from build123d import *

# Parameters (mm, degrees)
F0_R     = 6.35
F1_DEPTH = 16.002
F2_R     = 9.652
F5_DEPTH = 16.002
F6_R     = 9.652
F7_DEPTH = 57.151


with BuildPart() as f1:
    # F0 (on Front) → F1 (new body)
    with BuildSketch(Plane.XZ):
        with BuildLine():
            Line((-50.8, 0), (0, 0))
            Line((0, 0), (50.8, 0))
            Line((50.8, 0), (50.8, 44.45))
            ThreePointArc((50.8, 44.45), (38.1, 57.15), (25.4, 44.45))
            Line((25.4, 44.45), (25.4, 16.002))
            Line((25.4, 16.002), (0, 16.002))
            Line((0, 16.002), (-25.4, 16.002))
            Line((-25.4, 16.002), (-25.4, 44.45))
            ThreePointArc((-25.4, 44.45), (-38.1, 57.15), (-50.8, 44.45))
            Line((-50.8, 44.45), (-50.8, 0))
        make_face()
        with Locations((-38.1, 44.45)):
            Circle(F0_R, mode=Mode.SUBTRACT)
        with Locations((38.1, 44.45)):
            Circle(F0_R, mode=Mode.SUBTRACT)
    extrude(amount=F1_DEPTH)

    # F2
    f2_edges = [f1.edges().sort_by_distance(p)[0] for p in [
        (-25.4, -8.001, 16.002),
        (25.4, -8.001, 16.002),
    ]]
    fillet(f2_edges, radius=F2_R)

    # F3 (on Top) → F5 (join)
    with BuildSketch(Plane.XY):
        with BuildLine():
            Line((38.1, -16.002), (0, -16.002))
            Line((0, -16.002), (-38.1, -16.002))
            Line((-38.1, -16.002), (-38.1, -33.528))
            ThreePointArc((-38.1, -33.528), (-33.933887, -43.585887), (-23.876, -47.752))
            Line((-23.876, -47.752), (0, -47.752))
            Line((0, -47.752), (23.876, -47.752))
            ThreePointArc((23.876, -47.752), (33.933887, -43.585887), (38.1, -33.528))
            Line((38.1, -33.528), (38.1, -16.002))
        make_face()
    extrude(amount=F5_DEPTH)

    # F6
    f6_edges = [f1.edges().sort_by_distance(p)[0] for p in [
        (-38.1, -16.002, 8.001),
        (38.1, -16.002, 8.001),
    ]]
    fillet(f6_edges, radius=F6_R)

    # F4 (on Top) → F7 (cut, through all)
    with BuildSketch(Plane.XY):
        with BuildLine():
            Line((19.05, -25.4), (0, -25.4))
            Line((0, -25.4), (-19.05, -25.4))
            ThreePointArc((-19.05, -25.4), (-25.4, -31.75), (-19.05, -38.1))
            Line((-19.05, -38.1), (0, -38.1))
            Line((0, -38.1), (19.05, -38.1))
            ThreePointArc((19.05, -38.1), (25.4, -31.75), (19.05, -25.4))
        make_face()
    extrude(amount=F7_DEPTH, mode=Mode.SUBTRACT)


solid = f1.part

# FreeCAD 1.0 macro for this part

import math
import FreeCAD as App
import Part
import Sketcher

V = App.Vector
Q = App.Units.Quantity


def edges_at(feature, points):
    """Names of the edges that pass closest to the given points."""
    edges = feature.Shape.Edges
    near = lambda p: min(range(len(edges)), key=lambda i: edges[i].distToShape(Part.Vertex(*p))[0])
    return sorted({f"Edge{near(p) + 1}" for p in points})

doc = App.newDocument("Part")
body = doc.addObject("PartDesign::Body", "Body")

# Sketch on XZ plane
sketch1 = doc.addObject("Sketcher::SketchObject", "Sketch")
body.addObject(sketch1)
sketch1.AttachmentSupport = (doc.XZ_Plane, [""])
sketch1.MapMode = "FlatFace"
sketch1.addGeometry([
    Part.LineSegment(V(-50.8, 0, 0), V(50.8, 0, 0)),  # 0
    Part.LineSegment(V(50.8, 0, 0), V(50.8, 44.45, 0)),  # 1
    Part.ArcOfCircle(Part.Circle(V(38.1, 44.45, 0), V(0, 0, 1), 12.7), math.radians(0), math.radians(180)),  # 2
    Part.LineSegment(V(25.4, 44.45, 0), V(25.4, 16.002, 0)),  # 3
    Part.LineSegment(V(25.4, 16.002, 0), V(-25.4, 16.002, 0)),  # 4
    Part.LineSegment(V(-25.4, 16.002, 0), V(-25.4, 44.45, 0)),  # 5
    Part.ArcOfCircle(Part.Circle(V(-38.1, 44.45, 0), V(0, 0, 1), 12.7), math.radians(0), math.radians(180)),  # 6
    Part.LineSegment(V(-50.8, 44.45, 0), V(-50.8, 0, 0)),  # 7
    Part.Circle(V(-38.1, 44.45, 0), V(0, 0, 1), 6.35),  # 8
    Part.Circle(V(38.1, 44.45, 0), V(0, 0, 1), 6.35),  # 9
], False)
sketch1.addConstraint([
    Sketcher.Constraint("Coincident", 0, 2, 1, 1),
    Sketcher.Constraint("Tangent", 1, 2, 2, 1),
    Sketcher.Constraint("Tangent", 2, 2, 3, 1),
    Sketcher.Constraint("Coincident", 3, 2, 4, 1),
    Sketcher.Constraint("Coincident", 4, 2, 5, 1),
    Sketcher.Constraint("Tangent", 5, 2, 6, 1),
    Sketcher.Constraint("Tangent", 6, 2, 7, 1),
    Sketcher.Constraint("Coincident", 7, 2, 0, 1),
    Sketcher.Constraint("Horizontal", 0),
    Sketcher.Constraint("Vertical", 1),
    Sketcher.Constraint("Vertical", 3),
    Sketcher.Constraint("Horizontal", 4),
    Sketcher.Constraint("Vertical", 5),
    Sketcher.Constraint("Vertical", 7),
    Sketcher.Constraint("Coincident", 8, 3, 6, 3),
    Sketcher.Constraint("Coincident", 9, 3, 2, 3),
    Sketcher.Constraint("Equal", 2, 6),
    Sketcher.Constraint("Equal", 8, 9),
    Sketcher.Constraint("Symmetric", 0, 2, 7, 2, -1, 1),
    Sketcher.Constraint("Horizontal", 2, 3, 6, 3),
    Sketcher.Constraint("Diameter", 8, Q("0.5 in")),
    Sketcher.Constraint("Radius", 2, Q("0.5 in")),
    Sketcher.Constraint("DistanceX", 0, 1, 0, 2, Q("4 in")),
    Sketcher.Constraint("DistanceY", 1, 1, 1, 2, Q("1.75 in")),
    Sketcher.Constraint("DistanceY", 3, 2, 3, 1, Q("1.12 in")),
])
pad1 = doc.addObject("PartDesign::Pad", "Pad")
body.addObject(pad1)
pad1.Profile = sketch1
pad1.Length = Q("0.63 in")
doc.recompute()

fillet = doc.addObject("PartDesign::Fillet", "Fillet")
body.addObject(fillet)
fillet.Base = (pad1, edges_at(pad1, [(-25.4, -8.001, 16.002), (25.4, -8.001, 16.002)]))
fillet.Radius = Q("0.38 in")

# Sketch on XY plane
sketch2 = doc.addObject("Sketcher::SketchObject", "Sketch001")
body.addObject(sketch2)
sketch2.AttachmentSupport = (doc.XY_Plane, [""])
sketch2.MapMode = "FlatFace"
sketch2.addGeometry([
    Part.LineSegment(V(38.1, -16.002, 0), V(-38.1, -16.002, 0)),  # 0
    Part.LineSegment(V(-38.1, -16.002, 0), V(-38.1, -33.528, 0)),  # 1
    Part.ArcOfCircle(Part.Circle(V(-23.876, -33.528, 0), V(0, 0, 1), 14.224), math.radians(179.999998), math.radians(270.000002)),  # 2
    Part.LineSegment(V(-23.876, -47.752, 0), V(23.876, -47.752, 0)),  # 3
    Part.ArcOfCircle(Part.Circle(V(23.876, -33.528, 0), V(0, 0, 1), 14.224), math.radians(-90.000002), math.radians(0.000002)),  # 4
    Part.LineSegment(V(38.1, -33.528, 0), V(38.1, -16.002, 0)),  # 5
], False)
sketch2.addConstraint([
    Sketcher.Constraint("Coincident", 0, 2, 1, 1),
    Sketcher.Constraint("Tangent", 1, 2, 2, 1),
    Sketcher.Constraint("Tangent", 2, 2, 3, 1),
    Sketcher.Constraint("Tangent", 3, 2, 4, 1),
    Sketcher.Constraint("Tangent", 4, 2, 5, 1),
    Sketcher.Constraint("Coincident", 5, 2, 0, 1),
    Sketcher.Constraint("Horizontal", 0),
    Sketcher.Constraint("Vertical", 1),
    Sketcher.Constraint("Horizontal", 3),
    Sketcher.Constraint("Vertical", 5),
    Sketcher.Constraint("Equal", 2, 4),
    Sketcher.Constraint("DistanceX", 0, 2, 0, 1, Q("3 in")),
    Sketcher.Constraint("Radius", 2, Q("0.56 in")),
    Sketcher.Constraint("DistanceY", 1, 2, 1, 1, Q("0.69 in")),
    Sketcher.Constraint("DistanceX", 0, 2, -1, 1, Q("1.5 in")),
    Sketcher.Constraint("DistanceY", 2, 3, -1, 1, Q("1.32 in")),
])
pad2 = doc.addObject("PartDesign::Pad", "Pad001")
body.addObject(pad2)
pad2.Profile = sketch2
pad2.Length = Q("0.63 in")
doc.recompute()

fillet2 = doc.addObject("PartDesign::Fillet", "Fillet001")
body.addObject(fillet2)
fillet2.Base = (pad2, edges_at(pad2, [(-38.1, -16.002, 8.001), (38.1, -16.002, 8.001)]))
fillet2.Radius = Q("0.38 in")

# Sketch on XY plane
sketch3 = doc.addObject("Sketcher::SketchObject", "Sketch002")
body.addObject(sketch3)
sketch3.AttachmentSupport = (doc.XY_Plane, [""])
sketch3.MapMode = "FlatFace"
sketch3.addGeometry([
    Part.LineSegment(V(19.05, -25.4, 0), V(-19.05, -25.4, 0)),
    Part.ArcOfCircle(Part.Circle(V(-19.05, -31.75, 0), V(0, 0, 1), 6.35), math.radians(90), math.radians(270)),
    Part.LineSegment(V(-19.05, -38.1, 0), V(19.05, -38.1, 0)),
    Part.ArcOfCircle(Part.Circle(V(19.05, -31.75, 0), V(0, 0, 1), 6.35), math.radians(-90), math.radians(90)),
], False)
sketch3.addConstraint([
    Sketcher.Constraint("Tangent", 0, 2, 1, 1),
    Sketcher.Constraint("Tangent", 1, 2, 2, 1),
    Sketcher.Constraint("Tangent", 2, 2, 3, 1),
    Sketcher.Constraint("Tangent", 3, 2, 0, 1),
    Sketcher.Constraint("Horizontal", 0),
    Sketcher.Constraint("Horizontal", 2),
    Sketcher.Constraint("Radius", 1, Q("0.25 in")),
    Sketcher.Constraint("DistanceX", 0, 2, 0, 1, Q("1.5 in")),
    Sketcher.Constraint("DistanceY", 0, 2, -1, 1, Q("1 in")),
    Sketcher.Constraint("DistanceX", 1, 3, -1, 1, Q("0.75 in")),
])
pocket1 = doc.addObject("PartDesign::Pocket", "Pocket")
body.addObject(pocket1)
pocket1.Profile = sketch3
pocket1.Type = "ThroughAll"
pocket1.Reversed = True

doc.recompute()
